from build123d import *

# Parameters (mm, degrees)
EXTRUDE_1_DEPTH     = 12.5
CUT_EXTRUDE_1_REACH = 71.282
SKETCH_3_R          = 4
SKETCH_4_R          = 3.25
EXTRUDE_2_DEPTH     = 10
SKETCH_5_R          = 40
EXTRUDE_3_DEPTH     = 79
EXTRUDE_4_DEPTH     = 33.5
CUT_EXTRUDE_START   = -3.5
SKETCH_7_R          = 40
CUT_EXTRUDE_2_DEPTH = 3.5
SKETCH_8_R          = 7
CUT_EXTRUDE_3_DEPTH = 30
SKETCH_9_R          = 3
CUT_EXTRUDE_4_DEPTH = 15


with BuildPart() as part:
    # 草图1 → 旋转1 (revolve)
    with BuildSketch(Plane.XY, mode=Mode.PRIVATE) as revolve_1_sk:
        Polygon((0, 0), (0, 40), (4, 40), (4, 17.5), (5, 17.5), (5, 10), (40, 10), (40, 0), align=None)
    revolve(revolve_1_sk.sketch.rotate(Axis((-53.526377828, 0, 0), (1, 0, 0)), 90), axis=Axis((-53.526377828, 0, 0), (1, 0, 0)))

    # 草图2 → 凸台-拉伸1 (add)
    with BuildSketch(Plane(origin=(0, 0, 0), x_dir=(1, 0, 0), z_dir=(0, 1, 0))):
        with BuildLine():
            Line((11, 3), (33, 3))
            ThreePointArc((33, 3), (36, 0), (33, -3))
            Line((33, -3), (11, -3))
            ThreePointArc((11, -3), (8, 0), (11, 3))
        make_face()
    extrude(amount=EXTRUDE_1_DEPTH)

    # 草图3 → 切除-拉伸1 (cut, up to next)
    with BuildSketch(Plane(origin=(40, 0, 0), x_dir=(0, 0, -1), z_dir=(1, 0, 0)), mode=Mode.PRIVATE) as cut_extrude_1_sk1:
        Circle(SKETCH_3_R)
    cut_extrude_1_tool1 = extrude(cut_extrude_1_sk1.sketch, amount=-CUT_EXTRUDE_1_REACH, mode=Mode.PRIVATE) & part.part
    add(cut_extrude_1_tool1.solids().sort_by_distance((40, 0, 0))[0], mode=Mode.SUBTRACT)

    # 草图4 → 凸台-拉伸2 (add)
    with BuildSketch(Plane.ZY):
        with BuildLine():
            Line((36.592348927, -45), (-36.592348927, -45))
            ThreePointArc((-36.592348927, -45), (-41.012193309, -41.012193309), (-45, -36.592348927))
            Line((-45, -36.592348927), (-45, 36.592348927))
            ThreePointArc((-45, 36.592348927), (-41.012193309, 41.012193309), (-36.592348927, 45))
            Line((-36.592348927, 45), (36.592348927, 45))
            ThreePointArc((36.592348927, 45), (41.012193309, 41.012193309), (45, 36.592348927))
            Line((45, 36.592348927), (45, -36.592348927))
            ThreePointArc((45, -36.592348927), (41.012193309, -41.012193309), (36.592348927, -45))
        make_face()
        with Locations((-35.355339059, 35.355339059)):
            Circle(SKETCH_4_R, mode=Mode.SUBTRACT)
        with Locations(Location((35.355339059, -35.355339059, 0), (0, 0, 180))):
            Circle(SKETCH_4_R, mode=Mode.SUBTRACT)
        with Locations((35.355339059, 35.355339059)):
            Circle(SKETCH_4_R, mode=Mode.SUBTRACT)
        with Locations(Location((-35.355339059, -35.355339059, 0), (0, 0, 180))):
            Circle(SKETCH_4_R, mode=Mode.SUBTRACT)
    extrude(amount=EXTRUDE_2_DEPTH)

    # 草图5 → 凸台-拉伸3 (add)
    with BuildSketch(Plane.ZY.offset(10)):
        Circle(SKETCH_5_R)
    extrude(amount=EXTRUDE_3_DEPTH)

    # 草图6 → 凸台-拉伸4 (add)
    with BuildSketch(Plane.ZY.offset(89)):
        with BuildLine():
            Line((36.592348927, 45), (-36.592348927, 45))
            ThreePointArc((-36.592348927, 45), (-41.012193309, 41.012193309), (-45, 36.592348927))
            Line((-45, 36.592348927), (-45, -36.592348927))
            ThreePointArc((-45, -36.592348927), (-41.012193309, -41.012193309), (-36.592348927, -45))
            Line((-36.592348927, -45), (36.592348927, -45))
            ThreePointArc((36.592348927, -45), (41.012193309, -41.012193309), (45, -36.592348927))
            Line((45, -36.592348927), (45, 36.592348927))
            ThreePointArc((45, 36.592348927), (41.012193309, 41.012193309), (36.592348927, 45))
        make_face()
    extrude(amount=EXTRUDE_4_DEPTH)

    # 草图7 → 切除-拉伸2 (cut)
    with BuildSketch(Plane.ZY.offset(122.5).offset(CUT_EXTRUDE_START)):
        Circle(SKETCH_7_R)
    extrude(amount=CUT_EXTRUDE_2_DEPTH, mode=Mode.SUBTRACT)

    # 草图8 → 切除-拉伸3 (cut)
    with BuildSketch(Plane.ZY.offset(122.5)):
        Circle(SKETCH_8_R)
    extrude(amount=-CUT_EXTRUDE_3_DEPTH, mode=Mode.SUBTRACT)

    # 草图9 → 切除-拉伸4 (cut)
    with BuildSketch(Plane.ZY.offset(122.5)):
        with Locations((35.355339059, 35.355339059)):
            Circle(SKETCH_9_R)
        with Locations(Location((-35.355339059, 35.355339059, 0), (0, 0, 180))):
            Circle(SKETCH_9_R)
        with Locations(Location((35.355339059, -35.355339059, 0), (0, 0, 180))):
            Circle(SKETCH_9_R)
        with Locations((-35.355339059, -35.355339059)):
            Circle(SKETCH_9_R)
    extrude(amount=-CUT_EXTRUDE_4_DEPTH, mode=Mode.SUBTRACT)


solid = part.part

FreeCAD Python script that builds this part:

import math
import FreeCAD as App
import Part
import Sketcher
Q = App.Units.Quantity

doc = App.newDocument("Part")
body = doc.addObject("PartDesign::Body", "Body")

# Sketch on XY plane
sketch1 = doc.addObject("Sketcher::SketchObject", "Sketch")
body.addObject(sketch1)
sketch1.AttachmentSupport = (doc.XY_Plane, [""])
sketch1.MapMode = "FlatFace"
sketch1.addGeometry([
    Part.LineSegment(App.Vector(0, 40, 0), App.Vector(0, 0, 0)),  # 0
    Part.LineSegment(App.Vector(0, 0, 0), App.Vector(40, 0, 0)),  # 1
    Part.LineSegment(App.Vector(40, 0, 0), App.Vector(40, 10, 0)),  # 2
    Part.LineSegment(App.Vector(40, 10, 0), App.Vector(5, 10, 0)),  # 3
    Part.LineSegment(App.Vector(5, 10, 0), App.Vector(5, 17.5, 0)),  # 4
    Part.LineSegment(App.Vector(5, 17.5, 0), App.Vector(4, 17.5, 0)),  # 5
    Part.LineSegment(App.Vector(4, 17.5, 0), App.Vector(4, 40, 0)),  # 6
    Part.LineSegment(App.Vector(4, 40, 0), App.Vector(0, 40, 0)),  # 7
], False)
sketch1.addConstraint([
    Sketcher.Constraint("Coincident", 0, 2, 1, 1),
    Sketcher.Constraint("Coincident", 1, 2, 2, 1),
    Sketcher.Constraint("Coincident", 2, 2, 3, 1),
    Sketcher.Constraint("Coincident", 3, 2, 4, 1),
    Sketcher.Constraint("Coincident", 4, 2, 5, 1),
    Sketcher.Constraint("Coincident", 5, 2, 6, 1),
    Sketcher.Constraint("Coincident", 6, 2, 7, 1),
    Sketcher.Constraint("Coincident", 7, 2, 0, 1),
    Sketcher.Constraint("Vertical", 0),
    Sketcher.Constraint("Horizontal", 1),
    Sketcher.Constraint("Vertical", 2),
    Sketcher.Constraint("Horizontal", 3),
    Sketcher.Constraint("Vertical", 4),
    Sketcher.Constraint("Horizontal", 5),
    Sketcher.Constraint("Vertical", 6),
    Sketcher.Constraint("Horizontal", 7),
    Sketcher.Constraint("Coincident", 0, 2, -1, 1),
    Sketcher.Constraint("Equal", 1, 0),
    Sketcher.Constraint("DistanceX", 1, 1, 1, 2, Q("40 mm")),
    Sketcher.Constraint("DistanceX", 3, 2, 3, 1, Q("35 mm")),
    Sketcher.Constraint("DistanceX", 5, 2, 5, 1, Q("1 mm")),
    Sketcher.Constraint("DistanceY", 2, 1, 2, 2, Q("10 mm")),
    Sketcher.Constraint("DistanceY", 4, 1, 4, 2, Q("7.5 mm")),
])
revolution = doc.addObject("PartDesign::Revolution", "Revolution")
body.addObject(revolution)
revolution.Profile = sketch1
revolution.ReferenceAxis = (sketch1, ["H_Axis"])
revolution.Angle = 360

# Sketch on XZ plane
sketch2 = doc.addObject("Sketcher::SketchObject", "Sketch001")
body.addObject(sketch2)
sketch2.AttachmentSupport = (doc.XZ_Plane, [""])
sketch2.MapMode = "FlatFace"
sketch2.addGeometry([
    Part.LineSegment(App.Vector(33, -3, 0), App.Vector(11, -3, 0)),
    Part.ArcOfCircle(Part.Circle(App.Vector(11, 0, 0), App.Vector(0, 0, 1), 3), math.radians(90), math.radians(270)),
    Part.LineSegment(App.Vector(11, 3, 0), App.Vector(33, 3, 0)),
    Part.ArcOfCircle(Part.Circle(App.Vector(33, 0, 0), App.Vector(0, 0, 1), 3), math.radians(-90), math.radians(90)),
], False)
sketch2.addConstraint([
    Sketcher.Constraint("Tangent", 0, 2, 1, 2),
    Sketcher.Constraint("Tangent", 1, 1, 2, 1),
    Sketcher.Constraint("Tangent", 2, 2, 3, 2),
    Sketcher.Constraint("Tangent", 3, 1, 0, 1),
    Sketcher.Constraint("Horizontal", 0),
    Sketcher.Constraint("Horizontal", 2),
    Sketcher.Constraint("PointOnObject", 1, 3, -1),
    Sketcher.Constraint("Radius", 1, Q("3 mm")),
    Sketcher.Constraint("DistanceX", 0, 2, 0, 1, Q("22 mm")),
    Sketcher.Constraint("DistanceX", -1, 1, 1, 3, Q("11 mm")),
])
pad1 = doc.addObject("PartDesign::Pad", "Pad")
body.addObject(pad1)
pad1.Profile = sketch2
pad1.Length = 12.5
pad1.Reversed = True

# Sketch on YZ plane
sketch3 = doc.addObject("Sketcher::SketchObject", "Sketch002")
body.addObject(sketch3)
sketch3.AttachmentSupport = (doc.YZ_Plane, [""])
sketch3.MapMode = "FlatFace"
sketch3.AttachmentOffset = App.Placement(App.Vector(0, 0, 40), App.Rotation())
sketch3.addGeometry(Part.Circle(App.Vector(0, 0, 0), App.Vector(0, 0, 1), 4), False)
sketch3.addConstraint([
    Sketcher.Constraint("Coincident", 0, 3, -1, 1),
    Sketcher.Constraint("Diameter", 0, Q("8 mm")),
])
pocket1 = doc.addObject("PartDesign::Pocket", "Pocket")
body.addObject(pocket1)
pocket1.Profile = sketch3
pocket1.Type = "UpToFirst"

# Sketch on YZ plane
sketch4 = doc.addObject("Sketcher::SketchObject", "Sketch003")
body.addObject(sketch4)
sketch4.AttachmentSupport = (doc.YZ_Plane, [""])
sketch4.MapMode = "FlatFace"
sketch4.addGeometry([
    Part.LineSegment(App.Vector(-45, -36.592349, 0), App.Vector(-45, 36.592349, 0)),  # 0
    Part.ArcOfCircle(Part.Circle(App.Vector(0, 0, 0), App.Vector(0, 0, 1), 58), math.radians(129.116744), math.radians(140.883256)),  # 1
    Part.LineSegment(App.Vector(-36.592349, 45, 0), App.Vector(36.592349, 45, 0)),  # 2
    Part.ArcOfCircle(Part.Circle(App.Vector(0, 0, 0), App.Vector(0, 0, 1), 58), math.radians(39.116744), math.radians(50.883256)),  # 3
    Part.LineSegment(App.Vector(45, 36.592349, 0), App.Vector(45, -36.592349, 0)),  # 4
    Part.ArcOfCircle(Part.Circle(App.Vector(0, 0, 0), App.Vector(0, 0, 1), 58), math.radians(-50.883256), math.radians(-39.116744)),  # 5
    Part.LineSegment(App.Vector(36.592349, -45, 0), App.Vector(-36.592349, -45, 0)),  # 6
    Part.ArcOfCircle(Part.Circle(App.Vector(0, 0, 0), App.Vector(0, 0, 1), 58), math.radians(-140.883256), math.radians(-129.116744)),  # 7
    Part.Circle(App.Vector(-35.355339, 35.355339, 0), App.Vector(0, 0, 1), 3.25),  # 8
    Part.Circle(App.Vector(-35.355339, -35.355339, 0), App.Vector(0, 0, 1), 3.25),  # 9
    Part.Circle(App.Vector(35.355339, 35.355339, 0), App.Vector(0, 0, 1), 3.25),  # 10
    Part.Circle(App.Vector(35.355339, -35.355339, 0), App.Vector(0, 0, 1), 3.25),  # 11
], False)
sketch4.addConstraint([
    Sketcher.Constraint("Coincident", 0, 2, 1, 2),
    Sketcher.Constraint("Coincident", 1, 1, 2, 1),
    Sketcher.Constraint("Coincident", 2, 2, 3, 2),
    Sketcher.Constraint("Coincident", 3, 1, 4, 1),
    Sketcher.Constraint("Coincident", 4, 2, 5, 2),
    Sketcher.Constraint("Coincident", 5, 1, 6, 1),
    Sketcher.Constraint("Coincident", 6, 2, 7, 2),
    Sketcher.Constraint("Coincident", 7, 1, 0, 1),
    Sketcher.Constraint("Vertical", 0),
    Sketcher.Constraint("Horizontal", 2),
    Sketcher.Constraint("Vertical", 4),
    Sketcher.Constraint("Horizontal", 6),
    Sketcher.Constraint("Coincident", 1, 3, -1, 1),
    Sketcher.Constraint("Coincident", 3, 3, -1, 1),
    Sketcher.Constraint("Coincident", 5, 3, -1, 1),
    Sketcher.Constraint("Coincident", 7, 3, -1, 1),
    Sketcher.Constraint("Equal", 1, 3),
    Sketcher.Constraint("Equal", 3, 5),
    Sketcher.Constraint("Equal", 5, 7),
    Sketcher.Constraint("Equal", 8, 9),
    Sketcher.Constraint("Equal", 9, 10),
    Sketcher.Constraint("Equal", 10, 11),
    Sketcher.Constraint("Symmetric", 9, 3, 10, 3, -1, 1),
    Sketcher.Constraint("Symmetric", 8, 3, 11, 3, -1, 1),
    Sketcher.Constraint("Symmetric", 8, 3, 10, 3, -2),
    Sketcher.Constraint("Horizontal", 0, 2, 3, 1),
    Sketcher.Constraint("Vertical", 2, 2, 5, 1),
    Sketcher.Constraint("Equal", 6, 0),
    Sketcher.Constraint("Radius", 1, Q("58 mm")),
    Sketcher.Constraint("Diameter", 8, Q("6.5 mm")),
    Sketcher.Constraint("DistanceX", 0, 2, -1, 1, Q("45 mm")),
    Sketcher.Constraint("DistanceX", 8, 3, -1, 1, Q("35.355339 mm")),
    Sketcher.Constraint("DistanceY", -1, 1, 8, 3, Q("35.355339 mm")),
])
pad2 = doc.addObject("PartDesign::Pad", "Pad001")
body.addObject(pad2)
pad2.Profile = sketch4
pad2.Length = 10
pad2.Reversed = True

# Sketch on YZ plane
sketch5 = doc.addObject("Sketcher::SketchObject", "Sketch004")
body.addObject(sketch5)
sketch5.AttachmentSupport = (doc.YZ_Plane, [""])
sketch5.MapMode = "FlatFace"
sketch5.AttachmentOffset = App.Placement(App.Vector(0, 0, -10), App.Rotation())
sketch5.addGeometry(Part.Circle(App.Vector(0, 0, 0), App.Vector(0, 0, 1), 40), False)
sketch5.addConstraint([
    Sketcher.Constraint("Coincident", 0, 3, -1, 1),
    Sketcher.Constraint("Diameter", 0, Q("80 mm")),
])
pad3 = doc.addObject("PartDesign::Pad", "Pad002")
body.addObject(pad3)
pad3.Profile = sketch5
pad3.Length = 79
pad3.Reversed = True

# Sketch on YZ plane
sketch6 = doc.addObject("Sketcher::SketchObject", "Sketch005")
body.addObject(sketch6)
sketch6.AttachmentSupport = (doc.YZ_Plane, [""])
sketch6.MapMode = "FlatFace"
sketch6.AttachmentOffset = App.Placement(App.Vector(0, 0, -89), App.Rotation())
sketch6.addGeometry([
    Part.LineSegment(App.Vector(45, 36.592349, 0), App.Vector(45, -36.592349, 0)),  # 0
    Part.ArcOfCircle(Part.Circle(App.Vector(0, 0, 0), App.Vector(0, 0, 1), 58), math.radians(-50.883256), math.radians(-39.116744)),  # 1
    Part.LineSegment(App.Vector(36.592349, -45, 0), App.Vector(-36.592349, -45, 0)),  # 2
    Part.ArcOfCircle(Part.Circle(App.Vector(0, 0, 0), App.Vector(0, 0, 1), 58), math.radians(-140.883256), math.radians(-129.116744)),  # 3
    Part.LineSegment(App.Vector(-45, -36.592349, 0), App.Vector(-45, 36.592349, 0)),  # 4
    Part.ArcOfCircle(Part.Circle(App.Vector(0, 0, 0), App.Vector(0, 0, 1), 58), math.radians(129.116744), math.radians(140.883256)),  # 5
    Part.LineSegment(App.Vector(-36.592349, 45, 0), App.Vector(36.592349, 45, 0)),  # 6
    Part.ArcOfCircle(Part.Circle(App.Vector(0, 0, 0), App.Vector(0, 0, 1), 58), math.radians(39.116744), math.radians(50.883256)),  # 7
], False)
sketch6.addConstraint([
    Sketcher.Constraint("Coincident", 0, 2, 1, 2),
    Sketcher.Constraint("Coincident", 1, 1, 2, 1),
    Sketcher.Constraint("Coincident", 2, 2, 3, 2),
    Sketcher.Constraint("Coincident", 3, 1, 4, 1),
    Sketcher.Constraint("Coincident", 4, 2, 5, 2),
    Sketcher.Constraint("Coincident", 5, 1, 6, 1),
    Sketcher.Constraint("Coincident", 6, 2, 7, 2),
    Sketcher.Constraint("Coincident", 7, 1, 0, 1),
    Sketcher.Constraint("Vertical", 0),
    Sketcher.Constraint("Horizontal", 2),
    Sketcher.Constraint("Vertical", 4),
    Sketcher.Constraint("Horizontal", 6),
    Sketcher.Constraint("Coincident", 1, 3, -1, 1),
    Sketcher.Constraint("Coincident", 3, 3, -1, 1),
    Sketcher.Constraint("Coincident", 5, 3, -1, 1),
    Sketcher.Constraint("Coincident", 7, 3, -1, 1),
    Sketcher.Constraint("Equal", 1, 3),
    Sketcher.Constraint("Equal", 3, 5),
    Sketcher.Constraint("Equal", 5, 7),
    Sketcher.Constraint("Horizontal", 0, 2, 3, 1),
    Sketcher.Constraint("Vertical", 2, 2, 5, 1),
    Sketcher.Constraint("Equal", 6, 0),
    Sketcher.Constraint("Radius", 1, Q("58 mm")),
    Sketcher.Constraint("DistanceX", -1, 1, 0, 2, Q("45 mm")),
])
pad4 = doc.addObject("PartDesign::Pad", "Pad003")
body.addObject(pad4)
pad4.Profile = sketch6
pad4.Length = 33.5
pad4.Reversed = True

# Sketch on YZ plane
sketch7 = doc.addObject("Sketcher::SketchObject", "Sketch006")
body.addObject(sketch7)
sketch7.AttachmentSupport = (doc.YZ_Plane, [""])
sketch7.MapMode = "FlatFace"
sketch7.AttachmentOffset = App.Placement(App.Vector(0, 0, -119), App.Rotation())
sketch7.addGeometry(Part.Circle(App.Vector(0, 0, 0), App.Vector(0, 0, 1), 40), False)
sketch7.addConstraint([
    Sketcher.Constraint("Coincident", 0, 3, -1, 1),
    Sketcher.Constraint("Diameter", 0, Q("80 mm")),
])
pocket2 = doc.addObject("PartDesign::Pocket", "Pocket001")
body.addObject(pocket2)
pocket2.Profile = sketch7
pocket2.Length = 3.5

# Sketch on YZ plane
sketch8 = doc.addObject("Sketcher::SketchObject", "Sketch007")
body.addObject(sketch8)
sketch8.AttachmentSupport = (doc.YZ_Plane, [""])
sketch8.MapMode = "FlatFace"
sketch8.AttachmentOffset = App.Placement(App.Vector(0, 0, -122.5), App.Rotation())
sketch8.addGeometry(Part.Circle(App.Vector(0, 0, 0), App.Vector(0, 0, 1), 7), False)
sketch8.addConstraint([
    Sketcher.Constraint("Coincident", 0, 3, -1, 1),
    Sketcher.Constraint("Diameter", 0, Q("14 mm")),
])
pocket3 = doc.addObject("PartDesign::Pocket", "Pocket002")
body.addObject(pocket3)
pocket3.Profile = sketch8
pocket3.Length = 30
pocket3.Reversed = True

# Sketch on YZ plane
sketch9 = doc.addObject("Sketcher::SketchObject", "Sketch008")
body.addObject(sketch9)
sketch9.AttachmentSupport = (doc.YZ_Plane, [""])
sketch9.MapMode = "FlatFace"
sketch9.AttachmentOffset = App.Placement(App.Vector(0, 0, -122.5), App.Rotation())
sketch9.addGeometry([
    Part.Circle(App.Vector(35.355339, 35.355339, 0), App.Vector(0, 0, 1), 3),
    Part.Circle(App.Vector(35.355339, -35.355339, 0), App.Vector(0, 0, 1), 3),
    Part.Circle(App.Vector(-35.355339, 35.355339, 0), App.Vector(0, 0, 1), 3),
    Part.Circle(App.Vector(-35.355339, -35.355339, 0), App.Vector(0, 0, 1), 3),
], False)
sketch9.addConstraint([
    Sketcher.Constraint("Equal", 0, 1),
    Sketcher.Constraint("Equal", 1, 2),
    Sketcher.Constraint("Equal", 2, 3),
    Sketcher.Constraint("Symmetric", 1, 3, 2, 3, -1, 1),
    Sketcher.Constraint("Symmetric", 0, 3, 3, 3, -1, 1),
    Sketcher.Constraint("Symmetric", 0, 3, 2, 3, -2),
    Sketcher.Constraint("Diameter", 0, Q("6 mm")),
    Sketcher.Constraint("DistanceX", -1, 1, 0, 3, Q("35.355339 mm")),
    Sketcher.Constraint("DistanceY", -1, 1, 0, 3, Q("35.355339 mm")),
])
pocket4 = doc.addObject("PartDesign::Pocket", "Pocket003")
body.addObject(pocket4)
pocket4.Profile = sketch9
pocket4.Length = 15
pocket4.Reversed = True

doc.recompute()
